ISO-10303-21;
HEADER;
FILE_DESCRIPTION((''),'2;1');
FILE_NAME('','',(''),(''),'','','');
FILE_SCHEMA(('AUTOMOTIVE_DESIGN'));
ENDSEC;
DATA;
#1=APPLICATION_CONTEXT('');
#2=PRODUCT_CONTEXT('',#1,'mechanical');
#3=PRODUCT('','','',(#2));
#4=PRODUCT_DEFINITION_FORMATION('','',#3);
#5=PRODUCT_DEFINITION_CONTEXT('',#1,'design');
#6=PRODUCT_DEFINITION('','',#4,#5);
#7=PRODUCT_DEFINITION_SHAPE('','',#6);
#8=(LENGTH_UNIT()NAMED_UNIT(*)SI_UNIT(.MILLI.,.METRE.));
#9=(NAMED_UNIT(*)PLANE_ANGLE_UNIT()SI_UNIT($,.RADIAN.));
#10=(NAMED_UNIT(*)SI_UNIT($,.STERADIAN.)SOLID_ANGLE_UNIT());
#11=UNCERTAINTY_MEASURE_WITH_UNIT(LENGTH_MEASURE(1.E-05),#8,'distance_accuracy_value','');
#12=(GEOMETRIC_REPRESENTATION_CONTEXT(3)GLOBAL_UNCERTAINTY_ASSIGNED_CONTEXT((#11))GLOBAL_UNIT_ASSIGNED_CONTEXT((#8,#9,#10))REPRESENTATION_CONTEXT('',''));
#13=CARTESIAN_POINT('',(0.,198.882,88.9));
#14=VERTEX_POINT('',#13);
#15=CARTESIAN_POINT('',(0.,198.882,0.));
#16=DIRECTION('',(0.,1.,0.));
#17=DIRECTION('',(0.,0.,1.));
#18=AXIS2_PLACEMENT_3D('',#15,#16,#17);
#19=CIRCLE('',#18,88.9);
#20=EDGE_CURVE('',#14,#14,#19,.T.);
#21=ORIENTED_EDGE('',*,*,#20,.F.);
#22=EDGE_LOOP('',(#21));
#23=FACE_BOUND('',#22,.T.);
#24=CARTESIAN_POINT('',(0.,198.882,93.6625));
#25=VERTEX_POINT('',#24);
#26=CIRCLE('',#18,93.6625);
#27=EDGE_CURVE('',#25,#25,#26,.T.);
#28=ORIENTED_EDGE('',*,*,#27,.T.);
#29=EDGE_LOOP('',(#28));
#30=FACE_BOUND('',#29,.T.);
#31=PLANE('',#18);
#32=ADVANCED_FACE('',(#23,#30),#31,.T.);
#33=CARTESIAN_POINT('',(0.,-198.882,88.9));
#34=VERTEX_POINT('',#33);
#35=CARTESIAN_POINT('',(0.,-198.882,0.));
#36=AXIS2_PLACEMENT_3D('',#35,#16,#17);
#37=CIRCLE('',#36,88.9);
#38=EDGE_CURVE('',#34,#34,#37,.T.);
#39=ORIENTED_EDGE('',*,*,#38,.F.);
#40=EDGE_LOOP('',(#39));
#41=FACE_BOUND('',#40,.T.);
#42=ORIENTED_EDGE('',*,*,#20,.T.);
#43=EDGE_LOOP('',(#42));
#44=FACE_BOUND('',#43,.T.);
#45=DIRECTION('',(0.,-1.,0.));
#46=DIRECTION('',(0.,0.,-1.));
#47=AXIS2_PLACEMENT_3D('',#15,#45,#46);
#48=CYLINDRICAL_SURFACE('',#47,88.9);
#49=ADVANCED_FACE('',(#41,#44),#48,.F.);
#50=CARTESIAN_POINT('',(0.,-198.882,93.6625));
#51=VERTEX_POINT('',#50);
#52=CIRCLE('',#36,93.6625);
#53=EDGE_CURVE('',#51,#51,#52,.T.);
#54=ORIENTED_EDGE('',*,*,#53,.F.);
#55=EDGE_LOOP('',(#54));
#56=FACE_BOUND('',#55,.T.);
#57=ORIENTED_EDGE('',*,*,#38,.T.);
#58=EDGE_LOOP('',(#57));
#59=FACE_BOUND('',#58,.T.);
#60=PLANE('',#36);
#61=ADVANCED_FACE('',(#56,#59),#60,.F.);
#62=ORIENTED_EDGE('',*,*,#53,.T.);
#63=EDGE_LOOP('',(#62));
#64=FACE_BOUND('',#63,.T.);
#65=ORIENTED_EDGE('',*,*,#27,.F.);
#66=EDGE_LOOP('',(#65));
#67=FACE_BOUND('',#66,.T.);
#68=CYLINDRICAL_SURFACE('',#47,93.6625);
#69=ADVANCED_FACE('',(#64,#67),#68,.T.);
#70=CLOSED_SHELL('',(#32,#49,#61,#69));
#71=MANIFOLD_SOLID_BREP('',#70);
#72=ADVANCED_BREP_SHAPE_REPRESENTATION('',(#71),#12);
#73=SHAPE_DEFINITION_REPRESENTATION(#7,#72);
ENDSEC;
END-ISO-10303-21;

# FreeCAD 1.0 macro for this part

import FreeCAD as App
import Part
import Sketcher
from FreeCAD import Vector
Q = App.Units.Quantity

doc = App.newDocument("Part")
params = doc.addObject("Spreadsheet::Sheet", "Params")
for row, (alias, value) in enumerate([
    ("sketch1_diameter", "7 in"),
    ("sketch1_diameter2", "7.375 in"),
    ("pad1_length", "15.66 in"),
], start=1):
    params.set(f"A{row}", alias)
    params.set(f"B{row}", "=" + value)
    params.setAlias(f"B{row}", alias)

body = doc.addObject("PartDesign::Body", "Body")

# Sketch on XZ plane
sketch1 = body.newObject("Sketcher::SketchObject", "Sketch")
sketch1.AttachmentSupport = (doc.getObject("XZ_Plane"), [""])
sketch1.MapMode = "FlatFace"
sketch1.addGeometry([
    Part.Circle(Vector(0, 0, 0), Vector(0, 0, 1), 94),
    Part.Circle(Vector(0, 0, 0), Vector(0, 0, 1), 89),
], False)
sketch1.addConstraint([
    Sketcher.Constraint("Coincident", 0, 3, -1, 1),
    Sketcher.Constraint("Coincident", 1, 3, -1, 1),
    Sketcher.Constraint("Diameter", 1, Q("7 in")),
    Sketcher.Constraint("Diameter", 0, Q("7.375 in")),
])
sketch1.setExpression("Constraints[2]", "Params.sketch1_diameter")
sketch1.setExpression("Constraints[3]", "Params.sketch1_diameter2")
pad1 = body.newObject("PartDesign::Pad", "Pad")
pad1.Profile = sketch1
pad1.setExpression("Length", "Params.pad1_length")
pad1.Midplane = True

doc.recompute()
